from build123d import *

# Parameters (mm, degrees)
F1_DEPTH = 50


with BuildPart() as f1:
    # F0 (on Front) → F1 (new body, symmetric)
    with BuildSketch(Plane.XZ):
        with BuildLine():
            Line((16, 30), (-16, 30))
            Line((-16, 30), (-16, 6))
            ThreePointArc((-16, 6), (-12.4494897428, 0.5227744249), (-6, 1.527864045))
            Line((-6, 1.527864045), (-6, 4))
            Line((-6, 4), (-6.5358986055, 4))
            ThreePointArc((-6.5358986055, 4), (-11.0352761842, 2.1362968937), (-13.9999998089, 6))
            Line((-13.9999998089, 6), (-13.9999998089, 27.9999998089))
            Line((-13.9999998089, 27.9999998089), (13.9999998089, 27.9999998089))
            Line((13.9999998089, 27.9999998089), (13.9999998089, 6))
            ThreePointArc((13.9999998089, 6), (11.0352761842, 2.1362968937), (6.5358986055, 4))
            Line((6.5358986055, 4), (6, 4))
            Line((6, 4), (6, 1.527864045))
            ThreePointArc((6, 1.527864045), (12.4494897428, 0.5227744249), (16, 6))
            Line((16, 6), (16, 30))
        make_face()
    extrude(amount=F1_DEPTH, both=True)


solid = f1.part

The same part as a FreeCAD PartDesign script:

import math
import FreeCAD as App
import Part
import Sketcher
Q = App.Units.Quantity

doc = App.newDocument("Part")
body = doc.addObject("PartDesign::Body", "Body")

# Sketch on XZ plane
sketch1 = doc.addObject("Sketcher::SketchObject", "Sketch")
body.addObject(sketch1)
sketch1.AttachmentSupport = (doc.XZ_Plane, [""])
sketch1.MapMode = "FlatFace"
sketch1.addGeometry([
    Part.LineSegment(App.Vector(16, 30, 0), App.Vector(-16, 30, 0)),  # 0
    Part.LineSegment(App.Vector(-16, 30, 0), App.Vector(-16, 6, 0)),  # 1
    Part.ArcOfCircle(Part.Circle(App.Vector(-10, 6, 0), App.Vector(0, 0, 1), 6), math.radians(180), math.radians(311.810315)),  # 2
    Part.LineSegment(App.Vector(-6, 1.527864, 0), App.Vector(-6, 4, 0)),  # 3
    Part.LineSegment(App.Vector(-6, 4, 0), App.Vector(-6.535899, 4, 0)),  # 4
    Part.ArcOfCircle(Part.Circle(App.Vector(-10, 6, 0), App.Vector(0, 0, 1), 4), math.radians(180), math.radians(329.999998)),  # 5
    Part.LineSegment(App.Vector(-14, 6, 0), App.Vector(-14, 28, 0)),  # 6
    Part.LineSegment(App.Vector(-14, 28, 0), App.Vector(14, 28, 0)),  # 7
    Part.LineSegment(App.Vector(14, 28, 0), App.Vector(14, 6, 0)),  # 8
    Part.ArcOfCircle(Part.Circle(App.Vector(10, 6, 0), App.Vector(0, 0, 1), 4), math.radians(-149.999998), math.radians(0)),  # 9
    Part.LineSegment(App.Vector(6.535899, 4, 0), App.Vector(6, 4, 0)),  # 10
    Part.LineSegment(App.Vector(6, 4, 0), App.Vector(6, 1.527864, 0)),  # 11
    Part.ArcOfCircle(Part.Circle(App.Vector(10, 6, 0), App.Vector(0, 0, 1), 6), math.radians(-131.810315), math.radians(0)),  # 12
    Part.LineSegment(App.Vector(16, 6, 0), App.Vector(16, 30, 0)),  # 13
], False)
sketch1.addConstraint([
    Sketcher.Constraint("Coincident", 0, 2, 1, 1),
    Sketcher.Constraint("Tangent", 1, 2, 2, 1),
    Sketcher.Constraint("Coincident", 2, 2, 3, 1),
    Sketcher.Constraint("Coincident", 3, 2, 4, 1),
    Sketcher.Constraint("Coincident", 4, 2, 5, 2),
    Sketcher.Constraint("Tangent", 5, 1, 6, 1),
    Sketcher.Constraint("Coincident", 6, 2, 7, 1),
    Sketcher.Constraint("Coincident", 7, 2, 8, 1),
    Sketcher.Constraint("Tangent", 8, 2, 9, 2),
    Sketcher.Constraint("Coincident", 9, 1, 10, 1),
    Sketcher.Constraint("Coincident", 10, 2, 11, 1),
    Sketcher.Constraint("Coincident", 11, 2, 12, 1),
    Sketcher.Constraint("Tangent", 12, 2, 13, 1),
    Sketcher.Constraint("Coincident", 13, 2, 0, 1),
    Sketcher.Constraint("Horizontal", 0),
    Sketcher.Constraint("Vertical", 1),
    Sketcher.Constraint("Vertical", 3),
    Sketcher.Constraint("Horizontal", 4),
    Sketcher.Constraint("Vertical", 6),
    Sketcher.Constraint("Horizontal", 7),
    Sketcher.Constraint("Vertical", 8),
    Sketcher.Constraint("Horizontal", 10),
    Sketcher.Constraint("Vertical", 11),
    Sketcher.Constraint("Vertical", 13),
    Sketcher.Constraint("Coincident", 5, 3, 2, 3),
    Sketcher.Constraint("Coincident", 12, 3, 9, 3),
    Sketcher.Constraint("Equal", 5, 9),
    Sketcher.Constraint("Equal", 2, 12),
    Sketcher.Constraint("Symmetric", 2, 3, 9, 3, -2),
    Sketcher.Constraint("Symmetric", 3, 2, 10, 2, -2),
    Sketcher.Constraint("Radius", 2, Q("6 mm")),
    Sketcher.Constraint("Radius", 5, Q("4 mm")),
    Sketcher.Constraint("DistanceX", 0, 2, 0, 1, Q("32 mm")),
    Sketcher.Constraint("DistanceY", 1, 2, 1, 1, Q("24 mm")),
    Sketcher.Constraint("DistanceY", 6, 1, 6, 2, Q("22 mm")),
    Sketcher.Constraint("DistanceY", -1, 1, 2, 3, Q("6 mm")),
    Sketcher.Constraint("DistanceX", 2, 2, -1, 1, Q("6 mm")),
    Sketcher.Constraint("DistanceY", -1, 1, 3, 2, Q("4 mm")),
])
pad1 = doc.addObject("PartDesign::Pad", "Pad")
body.addObject(pad1)
pad1.Profile = sketch1
pad1.Length = 100
pad1.Midplane = True

doc.recompute()
